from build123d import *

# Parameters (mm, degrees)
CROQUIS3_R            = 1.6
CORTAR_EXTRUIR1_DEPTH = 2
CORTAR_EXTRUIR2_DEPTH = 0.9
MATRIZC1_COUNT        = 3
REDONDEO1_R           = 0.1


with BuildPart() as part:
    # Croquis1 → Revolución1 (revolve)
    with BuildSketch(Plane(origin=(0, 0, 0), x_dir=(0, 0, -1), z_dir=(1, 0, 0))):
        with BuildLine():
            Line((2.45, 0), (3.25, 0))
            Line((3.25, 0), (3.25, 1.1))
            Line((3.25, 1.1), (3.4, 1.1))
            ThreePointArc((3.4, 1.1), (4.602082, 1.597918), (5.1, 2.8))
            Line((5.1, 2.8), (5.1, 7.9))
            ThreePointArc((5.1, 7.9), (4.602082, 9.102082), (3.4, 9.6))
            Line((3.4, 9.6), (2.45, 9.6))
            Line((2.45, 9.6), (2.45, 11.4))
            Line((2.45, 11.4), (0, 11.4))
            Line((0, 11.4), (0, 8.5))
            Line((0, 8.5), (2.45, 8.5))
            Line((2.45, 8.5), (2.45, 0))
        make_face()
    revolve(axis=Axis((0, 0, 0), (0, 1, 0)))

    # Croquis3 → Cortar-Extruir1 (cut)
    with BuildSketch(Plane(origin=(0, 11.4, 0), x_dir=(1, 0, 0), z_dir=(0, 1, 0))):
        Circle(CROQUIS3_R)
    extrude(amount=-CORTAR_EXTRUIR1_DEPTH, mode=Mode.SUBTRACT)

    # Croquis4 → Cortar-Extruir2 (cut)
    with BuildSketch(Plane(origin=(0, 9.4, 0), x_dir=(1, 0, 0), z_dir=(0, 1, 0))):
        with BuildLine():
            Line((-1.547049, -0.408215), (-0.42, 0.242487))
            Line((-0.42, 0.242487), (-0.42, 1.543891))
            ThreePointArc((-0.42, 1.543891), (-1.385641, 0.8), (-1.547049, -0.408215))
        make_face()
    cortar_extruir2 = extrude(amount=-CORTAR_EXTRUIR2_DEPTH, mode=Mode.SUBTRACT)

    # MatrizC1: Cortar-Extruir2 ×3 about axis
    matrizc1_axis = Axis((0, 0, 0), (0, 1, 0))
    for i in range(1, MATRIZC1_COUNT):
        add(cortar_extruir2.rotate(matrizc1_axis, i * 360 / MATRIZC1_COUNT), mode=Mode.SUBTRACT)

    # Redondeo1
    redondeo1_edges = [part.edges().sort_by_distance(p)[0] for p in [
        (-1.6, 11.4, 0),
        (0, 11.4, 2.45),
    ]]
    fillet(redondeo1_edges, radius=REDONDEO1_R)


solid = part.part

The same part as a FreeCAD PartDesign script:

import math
import FreeCAD as App
import Part
import Sketcher

V = App.Vector
Q = App.Units.Quantity


def edges_at(feature, points):
    """Names of the edges that pass closest to the given points."""
    edges = feature.Shape.Edges
    near = lambda p: min(range(len(edges)), key=lambda i: edges[i].distToShape(Part.Vertex(*p))[0])
    return sorted({f"Edge{near(p) + 1}" for p in points})

doc = App.newDocument("Part")
body = doc.addObject("PartDesign::Body", "Body")

# Sketch on YZ plane
sketch1 = body.newObject("Sketcher::SketchObject", "Sketch")
sketch1.AttachmentSupport = (doc.getObject("YZ_Plane"), [""])
sketch1.MapMode = "FlatFace"
sketch1.addGeometry([
    Part.LineSegment(V(0, -2.45, 0), V(0, -3.25, 0)),  # 0
    Part.LineSegment(V(0, -3.25, 0), V(1.1, -3.25, 0)),  # 1
    Part.LineSegment(V(1.1, -3.25, 0), V(1.1, -3.4, 0)),  # 2
    Part.ArcOfCircle(Part.Circle(V(2.799998, -3.400002, 0), V(0, 0, 1), 1.699998), math.radians(179.999946), math.radians(270.000054)),  # 3
    Part.LineSegment(V(2.8, -5.1, 0), V(7.9, -5.1, 0)),  # 4
    Part.ArcOfCircle(Part.Circle(V(7.900002, -3.400002, 0), V(0, 0, 1), 1.699998), math.radians(-90.000054), math.radians(0.000054)),  # 5
    Part.LineSegment(V(9.6, -3.4, 0), V(9.6, -2.45, 0)),  # 6
    Part.LineSegment(V(9.6, -2.45, 0), V(11.4, -2.45, 0)),  # 7
    Part.LineSegment(V(11.4, -2.45, 0), V(11.4, 0, 0)),  # 8
    Part.LineSegment(V(11.4, 0, 0), V(8.5, 0, 0)),  # 9
    Part.LineSegment(V(8.5, 0, 0), V(8.5, -2.45, 0)),  # 10
    Part.LineSegment(V(8.5, -2.45, 0), V(0, -2.45, 0)),  # 11
], False)
sketch1.addConstraint([
    Sketcher.Constraint("Coincident", 0, 2, 1, 1),
    Sketcher.Constraint("Coincident", 1, 2, 2, 1),
    Sketcher.Constraint("Tangent", 2, 2, 3, 1),
    Sketcher.Constraint("Tangent", 3, 2, 4, 1),
    Sketcher.Constraint("Tangent", 4, 2, 5, 1),
    Sketcher.Constraint("Tangent", 5, 2, 6, 1),
    Sketcher.Constraint("Coincident", 6, 2, 7, 1),
    Sketcher.Constraint("Coincident", 7, 2, 8, 1),
    Sketcher.Constraint("Coincident", 8, 2, 9, 1),
    Sketcher.Constraint("Coincident", 9, 2, 10, 1),
    Sketcher.Constraint("Coincident", 10, 2, 11, 1),
    Sketcher.Constraint("Coincident", 11, 2, 0, 1),
    Sketcher.Constraint("Vertical", 0),
    Sketcher.Constraint("Horizontal", 1),
    Sketcher.Constraint("Vertical", 2),
    Sketcher.Constraint("Horizontal", 4),
    Sketcher.Constraint("Vertical", 6),
    Sketcher.Constraint("Horizontal", 7),
    Sketcher.Constraint("Vertical", 8),
    Sketcher.Constraint("Horizontal", 9),
    Sketcher.Constraint("Vertical", 10),
    Sketcher.Constraint("Horizontal", 11),
    Sketcher.Constraint("Equal", 3, 5),
    Sketcher.Constraint("PointOnObject", 0, 2, -2),
    Sketcher.Constraint("PointOnObject", 8, 2, -1),
    Sketcher.Constraint("Horizontal", 7, 2, 10, 2),
    Sketcher.Constraint("Radius", 3, Q("1.699998 mm")),
    Sketcher.Constraint("DistanceX", 1, 1, 1, 2, Q("1.1 mm")),
    Sketcher.Constraint("DistanceX", 4, 1, 4, 2, Q("5.1 mm")),
    Sketcher.Constraint("DistanceX", 7, 1, 7, 2, Q("1.8 mm")),
    Sketcher.Constraint("DistanceX", 9, 2, 9, 1, Q("2.9 mm")),
    Sketcher.Constraint("DistanceY", 0, 2, 0, 1, Q("0.8 mm")),
    Sketcher.Constraint("DistanceY", 2, 2, 2, 1, Q("0.15 mm")),
    Sketcher.Constraint("DistanceY", 8, 1, 8, 2, Q("2.45 mm")),
])
revolution = body.newObject("PartDesign::Revolution", "Revolution")
revolution.Profile = sketch1
revolution.ReferenceAxis = (sketch1, ["H_Axis"])
revolution.Angle = 360

# Sketch on XZ plane
sketch2 = body.newObject("Sketcher::SketchObject", "Sketch001")
sketch2.AttachmentSupport = (doc.getObject("XZ_Plane"), [""])
sketch2.MapMode = "FlatFace"
sketch2.AttachmentOffset = App.Placement(V(0, 0, -11.4), App.Rotation())
sketch2.addGeometry(Part.Circle(V(0, 0, 0), V(0, 0, 1), 1.6), False)
sketch2.addConstraint([
    Sketcher.Constraint("Coincident", 0, 3, -1, 1),
    Sketcher.Constraint("Diameter", 0, Q("3.2 mm")),
])
pocket1 = body.newObject("PartDesign::Pocket", "Pocket")
pocket1.Profile = sketch2
pocket1.Length = 2
pocket1.Reversed = True

# Sketch on XZ plane
sketch3 = body.newObject("Sketcher::SketchObject", "Sketch002")
sketch3.AttachmentSupport = (doc.getObject("XZ_Plane"), [""])
sketch3.MapMode = "FlatFace"
sketch3.AttachmentOffset = App.Placement(V(0, 0, -9.4), App.Rotation())
sketch3.addGeometry([
    Part.LineSegment(V(-1.547049, 0.408215, 0), V(-0.42, -0.242487, 0)),
    Part.LineSegment(V(-0.42, -0.242487, 0), V(-0.42, -1.543891, 0)),
    Part.ArcOfCircle(Part.Circle(V(-0.000001, -0.000001, 0), V(0, 0, 1), 1.599999), math.radians(165.218423), math.radians(254.78158)),
], False)
sketch3.addConstraint([
    Sketcher.Constraint("Coincident", 0, 2, 1, 1),
    Sketcher.Constraint("Coincident", 1, 2, 2, 2),
    Sketcher.Constraint("Coincident", 2, 1, 0, 1),
    Sketcher.Constraint("Vertical", 1),
    Sketcher.Constraint("Coincident", 2, 3, -1, 1),
    Sketcher.Constraint("Radius", 2, Q("1.599999 mm")),
    Sketcher.Constraint("Angle", 0, Q("-29.999998 deg")),
    Sketcher.Constraint("DistanceX", 0, 2, -1, 1, Q("0.42 mm")),
    Sketcher.Constraint("DistanceY", 1, 2, 1, 1, Q("1.301404 mm")),
])
pocket2 = body.newObject("PartDesign::Pocket", "Pocket001")
pocket2.Profile = sketch3
pocket2.Length = 0.9
pocket2.Reversed = True
doc.recompute()

polarpattern = body.newObject("PartDesign::PolarPattern", "PolarPattern")
polarpattern.Originals = [pocket2]
polarpattern.Axis = (doc.getObject("Y_Axis"), [""])
polarpattern.Angle = 360
polarpattern.Occurrences = 3
body.Tip = polarpattern
doc.recompute()

fillet = body.newObject("PartDesign::Fillet", "Fillet")
fillet.Base = (polarpattern, edges_at(polarpattern, [(-1.6, 11.4, 0), (0, 11.4, 2.45)]))
fillet.Radius = 0.1

doc.recompute()
